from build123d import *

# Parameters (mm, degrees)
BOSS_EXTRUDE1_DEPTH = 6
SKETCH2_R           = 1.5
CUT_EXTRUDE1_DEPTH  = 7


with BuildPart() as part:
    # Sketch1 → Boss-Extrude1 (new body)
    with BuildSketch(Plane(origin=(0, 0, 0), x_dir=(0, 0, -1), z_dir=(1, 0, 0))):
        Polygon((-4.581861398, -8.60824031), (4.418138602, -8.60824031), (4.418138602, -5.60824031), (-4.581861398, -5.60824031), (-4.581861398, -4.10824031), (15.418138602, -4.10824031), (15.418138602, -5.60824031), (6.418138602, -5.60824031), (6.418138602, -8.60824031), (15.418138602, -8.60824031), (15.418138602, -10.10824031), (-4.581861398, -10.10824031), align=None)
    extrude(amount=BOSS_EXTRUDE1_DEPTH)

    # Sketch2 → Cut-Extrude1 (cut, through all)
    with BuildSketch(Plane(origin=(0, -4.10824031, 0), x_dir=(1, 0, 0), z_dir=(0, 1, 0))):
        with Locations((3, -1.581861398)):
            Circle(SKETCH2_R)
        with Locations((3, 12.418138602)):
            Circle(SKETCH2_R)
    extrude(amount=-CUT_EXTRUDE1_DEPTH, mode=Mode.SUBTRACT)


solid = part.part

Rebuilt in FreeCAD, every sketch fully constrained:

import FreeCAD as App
import Part
import Sketcher
Q = App.Units.Quantity


def add_polygon(sketch, points):
    """Adds a closed chain of lines whose ends are joined by coincident constraints."""
    first, n = sketch.GeometryCount, len(points)
    for a, b in zip(points, points[1:] + points[:1]):
        sketch.addGeometry(Part.LineSegment(App.Vector(*a, 0), App.Vector(*b, 0)), False)
    for i in range(n):
        sketch.addConstraint(Sketcher.Constraint("Coincident", first + i, 2, first + (i + 1) % n, 1))

doc = App.newDocument("Part")
body = doc.addObject("PartDesign::Body", "Body")

# Sketch on YZ plane
sketch1 = body.newObject("Sketcher::SketchObject", "Sketch")
sketch1.AttachmentSupport = (doc.getObject("YZ_Plane"), [""])
sketch1.MapMode = "FlatFace"
add_polygon(sketch1, [(-8.6, -4.4), (-8.6, 4.6), (-10.1, 4.6), (-10.1, -15.4), (-8.6, -15.4), (-8.6, -6.4), (-5.6, -6.4), (-5.6, -15.4), (-4.1, -15.4), (-4.1, 4.6), (-5.6, 4.6), (-5.6, -4.4)])  # lines 0-11
sketch1.addConstraint(Sketcher.Constraint("Vertical", 0))
sketch1.addConstraint(Sketcher.Constraint("Horizontal", 1))
sketch1.addConstraint(Sketcher.Constraint("Vertical", 2))
sketch1.addConstraint(Sketcher.Constraint("Horizontal", 3))
sketch1.addConstraint(Sketcher.Constraint("Vertical", 4))
sketch1.addConstraint(Sketcher.Constraint("Horizontal", 5))
sketch1.addConstraint(Sketcher.Constraint("Vertical", 6))
sketch1.addConstraint(Sketcher.Constraint("Horizontal", 7))
sketch1.addConstraint(Sketcher.Constraint("Vertical", 8))
sketch1.addConstraint(Sketcher.Constraint("Horizontal", 9))
sketch1.addConstraint(Sketcher.Constraint("Vertical", 10))
sketch1.addConstraint(Sketcher.Constraint("Horizontal", 11))
sketch1.addConstraint(Sketcher.Constraint("Horizontal", 3, 2, 6, 2))
sketch1.addConstraint(Sketcher.Constraint("Horizontal", 1, 2, 8, 2))
sketch1.addConstraint(Sketcher.Constraint("Vertical", 0, 2, 3, 2))
sketch1.addConstraint(Sketcher.Constraint("Vertical", 6, 2, 9, 2))
sketch1.addConstraint(Sketcher.Constraint("Equal", 3, 7))
sketch1.addConstraint(Sketcher.Constraint("Equal", 0, 4))
sketch1.addConstraint(Sketcher.Constraint("DistanceX", 5, 1, 5, 2, Q("3 mm")))
sketch1.addConstraint(Sketcher.Constraint("DistanceY", 0, 1, 0, 2, Q("9 mm")))
sketch1.addConstraint(Sketcher.Constraint("DistanceY", 2, 2, 2, 1, Q("20 mm")))
sketch1.addConstraint(Sketcher.Constraint("DistanceX", 1, 2, 1, 1, Q("1.5 mm")))
sketch1.addConstraint(Sketcher.Constraint("DistanceX", 0, 2, -1, 1, Q("8.60824 mm")))
sketch1.addConstraint(Sketcher.Constraint("DistanceY", -1, 1, 0, 2, Q("4.581861 mm")))
pad1 = body.newObject("PartDesign::Pad", "Pad")
pad1.Profile = sketch1
pad1.Length = 6

# Sketch on XZ plane
sketch2 = body.newObject("Sketcher::SketchObject", "Sketch001")
sketch2.AttachmentSupport = (doc.getObject("XZ_Plane"), [""])
sketch2.MapMode = "FlatFace"
sketch2.AttachmentOffset = App.Placement(App.Vector(0, 0, 4.10824), App.Rotation())
sketch2.addGeometry(Part.Circle(App.Vector(3, 1.6, 0), App.Vector(0, 0, 1), 1.5), False)
sketch2.addGeometry(Part.Circle(App.Vector(3, -12.4, 0), App.Vector(0, 0, 1), 1.5), False)
sketch2.addConstraint(Sketcher.Constraint("Equal", 0, 1))
sketch2.addConstraint(Sketcher.Constraint("Vertical", 0, 3, 1, 3))
sketch2.addConstraint(Sketcher.Constraint("Diameter", 0, Q("3 mm")))
sketch2.addConstraint(Sketcher.Constraint("DistanceX", -1, 1, 0, 3, Q("3 mm")))
sketch2.addConstraint(Sketcher.Constraint("DistanceY", 1, 3, 0, 3, Q("14 mm")))
sketch2.addConstraint(Sketcher.Constraint("DistanceY", -1, 1, 0, 3, Q("1.581861 mm")))
pocket1 = body.newObject("PartDesign::Pocket", "Pocket")
pocket1.Profile = sketch2
pocket1.Type = "ThroughAll"
pocket1.Reversed = True

doc.recompute()
